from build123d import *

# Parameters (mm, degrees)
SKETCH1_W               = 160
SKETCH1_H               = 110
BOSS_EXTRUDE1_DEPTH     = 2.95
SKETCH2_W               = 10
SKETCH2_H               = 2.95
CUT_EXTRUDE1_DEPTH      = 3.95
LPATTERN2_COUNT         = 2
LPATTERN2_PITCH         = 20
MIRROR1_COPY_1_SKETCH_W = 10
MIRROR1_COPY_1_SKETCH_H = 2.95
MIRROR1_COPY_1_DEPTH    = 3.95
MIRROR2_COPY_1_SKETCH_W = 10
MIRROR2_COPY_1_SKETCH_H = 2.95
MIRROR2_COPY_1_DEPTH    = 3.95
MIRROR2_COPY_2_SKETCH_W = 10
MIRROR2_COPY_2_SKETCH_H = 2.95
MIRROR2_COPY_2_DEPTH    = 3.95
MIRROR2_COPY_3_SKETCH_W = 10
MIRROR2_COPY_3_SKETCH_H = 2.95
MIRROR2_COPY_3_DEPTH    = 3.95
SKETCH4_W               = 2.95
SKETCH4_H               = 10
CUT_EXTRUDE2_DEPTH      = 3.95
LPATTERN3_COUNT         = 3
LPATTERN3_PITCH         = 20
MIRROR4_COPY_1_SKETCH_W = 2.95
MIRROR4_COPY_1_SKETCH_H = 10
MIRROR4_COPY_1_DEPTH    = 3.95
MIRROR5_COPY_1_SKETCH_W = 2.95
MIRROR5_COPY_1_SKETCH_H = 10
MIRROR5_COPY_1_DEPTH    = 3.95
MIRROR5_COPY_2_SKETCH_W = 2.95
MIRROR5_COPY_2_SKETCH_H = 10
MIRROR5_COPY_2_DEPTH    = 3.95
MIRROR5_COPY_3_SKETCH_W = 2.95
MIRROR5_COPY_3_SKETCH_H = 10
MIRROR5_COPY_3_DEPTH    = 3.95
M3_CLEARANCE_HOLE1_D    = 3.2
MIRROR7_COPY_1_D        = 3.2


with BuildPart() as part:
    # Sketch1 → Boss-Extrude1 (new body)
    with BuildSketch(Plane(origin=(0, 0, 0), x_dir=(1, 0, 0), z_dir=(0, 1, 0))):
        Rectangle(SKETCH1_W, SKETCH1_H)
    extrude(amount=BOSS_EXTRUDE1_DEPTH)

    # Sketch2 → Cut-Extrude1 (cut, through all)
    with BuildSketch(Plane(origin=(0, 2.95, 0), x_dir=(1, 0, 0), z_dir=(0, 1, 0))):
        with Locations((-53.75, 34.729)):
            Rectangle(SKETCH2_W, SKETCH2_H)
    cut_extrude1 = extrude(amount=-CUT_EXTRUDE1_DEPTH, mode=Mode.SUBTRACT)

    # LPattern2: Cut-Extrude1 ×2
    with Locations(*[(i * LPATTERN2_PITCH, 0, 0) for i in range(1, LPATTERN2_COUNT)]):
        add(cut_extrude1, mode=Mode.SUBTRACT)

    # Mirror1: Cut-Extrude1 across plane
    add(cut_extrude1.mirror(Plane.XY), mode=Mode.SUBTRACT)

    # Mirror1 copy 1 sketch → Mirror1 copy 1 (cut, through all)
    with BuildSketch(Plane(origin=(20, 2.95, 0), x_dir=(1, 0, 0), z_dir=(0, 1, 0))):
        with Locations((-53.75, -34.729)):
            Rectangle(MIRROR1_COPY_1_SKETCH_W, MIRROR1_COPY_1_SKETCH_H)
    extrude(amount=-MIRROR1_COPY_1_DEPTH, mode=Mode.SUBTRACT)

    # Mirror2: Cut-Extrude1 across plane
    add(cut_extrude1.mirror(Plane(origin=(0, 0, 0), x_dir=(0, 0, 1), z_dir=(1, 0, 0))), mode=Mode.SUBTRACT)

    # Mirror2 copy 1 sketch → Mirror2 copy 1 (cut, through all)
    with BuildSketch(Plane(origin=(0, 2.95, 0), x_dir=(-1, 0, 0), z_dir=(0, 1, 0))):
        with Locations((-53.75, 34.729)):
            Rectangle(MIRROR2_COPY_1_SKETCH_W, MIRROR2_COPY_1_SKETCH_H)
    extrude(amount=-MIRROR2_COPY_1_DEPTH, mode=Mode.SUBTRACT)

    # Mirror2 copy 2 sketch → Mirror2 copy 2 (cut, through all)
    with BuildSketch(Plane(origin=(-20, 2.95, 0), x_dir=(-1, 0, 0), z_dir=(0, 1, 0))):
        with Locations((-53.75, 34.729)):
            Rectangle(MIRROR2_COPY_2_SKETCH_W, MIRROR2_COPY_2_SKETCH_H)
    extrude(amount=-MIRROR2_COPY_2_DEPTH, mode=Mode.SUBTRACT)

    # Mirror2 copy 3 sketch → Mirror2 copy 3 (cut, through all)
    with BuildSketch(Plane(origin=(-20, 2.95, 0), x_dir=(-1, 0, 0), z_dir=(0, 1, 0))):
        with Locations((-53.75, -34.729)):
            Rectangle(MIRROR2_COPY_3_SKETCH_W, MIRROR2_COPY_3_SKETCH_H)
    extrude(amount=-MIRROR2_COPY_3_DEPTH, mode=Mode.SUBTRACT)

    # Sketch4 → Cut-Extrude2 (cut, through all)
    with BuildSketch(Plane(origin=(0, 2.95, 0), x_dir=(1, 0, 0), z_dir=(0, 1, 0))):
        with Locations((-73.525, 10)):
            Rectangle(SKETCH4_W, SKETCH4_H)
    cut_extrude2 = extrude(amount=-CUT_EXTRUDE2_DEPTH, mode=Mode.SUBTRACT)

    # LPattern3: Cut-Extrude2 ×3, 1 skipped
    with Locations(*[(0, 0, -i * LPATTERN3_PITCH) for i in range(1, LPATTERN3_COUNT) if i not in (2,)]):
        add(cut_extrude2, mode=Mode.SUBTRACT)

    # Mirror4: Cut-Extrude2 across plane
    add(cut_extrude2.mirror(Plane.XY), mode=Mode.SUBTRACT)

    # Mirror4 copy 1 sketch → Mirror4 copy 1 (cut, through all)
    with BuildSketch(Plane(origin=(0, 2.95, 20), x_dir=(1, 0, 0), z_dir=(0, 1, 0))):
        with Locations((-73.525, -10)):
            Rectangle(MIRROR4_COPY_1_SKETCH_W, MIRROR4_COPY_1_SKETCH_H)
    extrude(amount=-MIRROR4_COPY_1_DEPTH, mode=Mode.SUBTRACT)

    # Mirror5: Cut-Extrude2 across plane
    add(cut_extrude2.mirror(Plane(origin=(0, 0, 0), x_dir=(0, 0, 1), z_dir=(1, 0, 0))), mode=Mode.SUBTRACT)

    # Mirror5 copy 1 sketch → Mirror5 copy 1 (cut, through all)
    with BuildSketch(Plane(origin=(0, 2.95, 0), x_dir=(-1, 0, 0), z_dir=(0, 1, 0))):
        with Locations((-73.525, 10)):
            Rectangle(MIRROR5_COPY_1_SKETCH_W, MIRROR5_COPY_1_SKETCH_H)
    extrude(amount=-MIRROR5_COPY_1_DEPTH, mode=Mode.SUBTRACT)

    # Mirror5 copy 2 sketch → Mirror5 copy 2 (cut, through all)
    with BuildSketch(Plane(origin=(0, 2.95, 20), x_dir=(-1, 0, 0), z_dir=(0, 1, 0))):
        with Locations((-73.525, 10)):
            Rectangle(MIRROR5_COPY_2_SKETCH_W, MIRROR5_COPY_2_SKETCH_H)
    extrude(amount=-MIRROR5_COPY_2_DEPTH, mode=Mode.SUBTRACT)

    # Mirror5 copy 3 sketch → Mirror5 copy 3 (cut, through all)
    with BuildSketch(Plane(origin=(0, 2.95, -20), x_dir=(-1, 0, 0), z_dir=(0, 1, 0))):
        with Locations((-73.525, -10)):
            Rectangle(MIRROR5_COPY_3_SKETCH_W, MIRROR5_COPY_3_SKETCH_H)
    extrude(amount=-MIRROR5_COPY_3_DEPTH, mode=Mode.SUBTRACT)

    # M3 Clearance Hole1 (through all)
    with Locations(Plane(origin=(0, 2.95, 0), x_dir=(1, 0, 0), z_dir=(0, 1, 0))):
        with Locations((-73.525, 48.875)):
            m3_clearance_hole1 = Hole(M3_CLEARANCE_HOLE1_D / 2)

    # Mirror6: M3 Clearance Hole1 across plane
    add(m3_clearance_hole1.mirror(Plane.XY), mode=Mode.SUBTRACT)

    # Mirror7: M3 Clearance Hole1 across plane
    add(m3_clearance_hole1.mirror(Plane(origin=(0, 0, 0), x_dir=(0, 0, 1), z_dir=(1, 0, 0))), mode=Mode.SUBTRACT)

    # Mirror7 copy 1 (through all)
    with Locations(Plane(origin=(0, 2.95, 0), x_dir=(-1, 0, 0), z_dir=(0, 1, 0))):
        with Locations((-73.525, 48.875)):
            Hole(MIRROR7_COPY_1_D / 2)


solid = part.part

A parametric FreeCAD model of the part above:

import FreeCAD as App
import Part
import Sketcher

V = App.Vector


def add_polygon(sketch, points):
    """Adds a closed chain of lines whose ends are joined by coincident constraints."""
    first, n = sketch.GeometryCount, len(points)
    for a, b in zip(points, points[1:] + points[:1]):
        sketch.addGeometry(Part.LineSegment(App.Vector(*a, 0), App.Vector(*b, 0)), False)
    for i in range(n):
        sketch.addConstraint(Sketcher.Constraint("Coincident", first + i, 2, first + (i + 1) % n, 1))

doc = App.newDocument("Part")
body = doc.addObject("PartDesign::Body", "Body")

# Sketch on XZ plane
sketch1 = body.newObject("Sketcher::SketchObject", "Sketch")
sketch1.AttachmentSupport = (doc.getObject("XZ_Plane"), [""])
sketch1.MapMode = "FlatFace"
add_polygon(sketch1, [(-80, -55), (-80, 55), (80, 55), (80, -55)])  # lines 0-3
sketch1.addConstraint([
    Sketcher.Constraint("Vertical", 0),
    Sketcher.Constraint("Horizontal", 1),
    Sketcher.Constraint("Vertical", 2),
    Sketcher.Constraint("Horizontal", 3),
    Sketcher.Constraint("Symmetric", 0, 2, 2, 2, -1, 1),
    Sketcher.Constraint("DistanceX", 1, 1, 1, 2, 160.0),
    Sketcher.Constraint("DistanceY", 0, 1, 0, 2, 110.0),
])
pad1 = body.newObject("PartDesign::Pad", "Pad")
pad1.Profile = sketch1
pad1.Length = 2.95
pad1.Reversed = True

# Sketch on XZ plane
sketch2 = body.newObject("Sketcher::SketchObject", "Sketch001")
sketch2.AttachmentSupport = (doc.getObject("XZ_Plane"), [""])
sketch2.MapMode = "FlatFace"
sketch2.AttachmentOffset = App.Placement(V(0, 0, -2.95), App.Rotation())
add_polygon(sketch2, [(-58.8, -36.2), (-58.8, -33.3), (-48.8, -33.3), (-48.8, -36.2)])  # lines 0-3
sketch2.addConstraint([
    Sketcher.Constraint("Vertical", 0),
    Sketcher.Constraint("Horizontal", 1),
    Sketcher.Constraint("Vertical", 2),
    Sketcher.Constraint("Horizontal", 3),
    Sketcher.Constraint("DistanceX", 1, 1, 1, 2, 10.0),
    Sketcher.Constraint("DistanceY", 0, 1, 0, 2, 2.95),
    Sketcher.Constraint("DistanceX", 0, 2, -1, 1, 58.75),
    Sketcher.Constraint("DistanceY", 0, 2, -1, 1, 33.254),
])
pocket1 = body.newObject("PartDesign::Pocket", "Pocket")
pocket1.Profile = sketch2
pocket1.Type = "ThroughAll"
pocket1.Reversed = True
doc.recompute()

linearpattern = body.newObject("PartDesign::LinearPattern", "LinearPattern")
linearpattern.Originals = [pocket1]
linearpattern.Direction = (doc.getObject("X_Axis"), [""])
linearpattern.Mode = "offset"
linearpattern.Offset = 20
linearpattern.Occurrences = 2
body.Tip = linearpattern
doc.recompute()

mirrored = body.newObject("PartDesign::Mirrored", "Mirrored")
mirrored.Originals = [pocket1]
mirrored.MirrorPlane = (doc.getObject("XY_Plane"), [""])
body.Tip = mirrored

# Sketch on XZ plane
sketch3 = body.newObject("Sketcher::SketchObject", "Sketch002")
sketch3.AttachmentSupport = (doc.getObject("XZ_Plane"), [""])
sketch3.MapMode = "FlatFace"
sketch3.AttachmentOffset = App.Placement(V(0, 0, -2.95), App.Rotation())
add_polygon(sketch3, [(-38.8, 33.3), (-38.8, 36.2), (-28.8, 36.2), (-28.8, 33.3)])  # lines 0-3
sketch3.addConstraint([
    Sketcher.Constraint("Vertical", 0),
    Sketcher.Constraint("Horizontal", 1),
    Sketcher.Constraint("Vertical", 2),
    Sketcher.Constraint("Horizontal", 3),
    Sketcher.Constraint("DistanceX", 1, 1, 1, 2, 10.0),
    Sketcher.Constraint("DistanceY", 0, 1, 0, 2, 2.95),
    Sketcher.Constraint("DistanceX", 0, 2, -1, 1, 38.75),
    Sketcher.Constraint("DistanceY", -1, 1, 0, 2, 36.204),
])
pocket2 = body.newObject("PartDesign::Pocket", "Pocket001")
pocket2.Profile = sketch3
pocket2.Type = "ThroughAll"
pocket2.Reversed = True
doc.recompute()

mirrored2 = body.newObject("PartDesign::Mirrored", "Mirrored001")
mirrored2.Originals = [pocket1]
mirrored2.MirrorPlane = (doc.getObject("YZ_Plane"), [""])
body.Tip = mirrored2

# Sketch on XZ plane
sketch4 = body.newObject("Sketcher::SketchObject", "Sketch003")
sketch4.AttachmentSupport = (doc.getObject("XZ_Plane"), [""])
sketch4.MapMode = "FlatFace"
sketch4.AttachmentOffset = App.Placement(V(0, 0, -2.95), App.Rotation())
add_polygon(sketch4, [(58.8, 36.2), (58.8, 33.3), (48.8, 33.3), (48.8, 36.2)])  # lines 0-3
sketch4.addConstraint([
    Sketcher.Constraint("Vertical", 0),
    Sketcher.Constraint("Horizontal", 1),
    Sketcher.Constraint("Vertical", 2),
    Sketcher.Constraint("Horizontal", 3),
    Sketcher.Constraint("DistanceX", 1, 2, 1, 1, 10.0),
    Sketcher.Constraint("DistanceY", 0, 2, 0, 1, 2.95),
    Sketcher.Constraint("DistanceX", -1, 1, 0, 2, 58.75),
    Sketcher.Constraint("DistanceY", -1, 1, 0, 2, 33.254),
])
pocket3 = body.newObject("PartDesign::Pocket", "Pocket002")
pocket3.Profile = sketch4
pocket3.Type = "ThroughAll"
pocket3.Reversed = True

# Sketch on XZ plane
sketch5 = body.newObject("Sketcher::SketchObject", "Sketch004")
sketch5.AttachmentSupport = (doc.getObject("XZ_Plane"), [""])
sketch5.MapMode = "FlatFace"
sketch5.AttachmentOffset = App.Placement(V(0, 0, -2.95), App.Rotation())
add_polygon(sketch5, [(38.8, 36.2), (38.8, 33.3), (28.8, 33.3), (28.8, 36.2)])  # lines 0-3
sketch5.addConstraint([
    Sketcher.Constraint("Vertical", 0),
    Sketcher.Constraint("Horizontal", 1),
    Sketcher.Constraint("Vertical", 2),
    Sketcher.Constraint("Horizontal", 3),
    Sketcher.Constraint("DistanceX", 1, 2, 1, 1, 10.0),
    Sketcher.Constraint("DistanceY", 0, 2, 0, 1, 2.95),
    Sketcher.Constraint("DistanceX", -1, 1, 0, 2, 38.75),
    Sketcher.Constraint("DistanceY", -1, 1, 0, 2, 33.254),
])
pocket4 = body.newObject("PartDesign::Pocket", "Pocket003")
pocket4.Profile = sketch5
pocket4.Type = "ThroughAll"
pocket4.Reversed = True

# Sketch on XZ plane
sketch6 = body.newObject("Sketcher::SketchObject", "Sketch005")
sketch6.AttachmentSupport = (doc.getObject("XZ_Plane"), [""])
sketch6.MapMode = "FlatFace"
sketch6.AttachmentOffset = App.Placement(V(0, 0, -2.95), App.Rotation())
add_polygon(sketch6, [(38.8, -33.3), (38.8, -36.2), (28.8, -36.2), (28.8, -33.3)])  # lines 0-3
sketch6.addConstraint([
    Sketcher.Constraint("Vertical", 0),
    Sketcher.Constraint("Horizontal", 1),
    Sketcher.Constraint("Vertical", 2),
    Sketcher.Constraint("Horizontal", 3),
    Sketcher.Constraint("DistanceX", 1, 2, 1, 1, 10.0),
    Sketcher.Constraint("DistanceY", 0, 2, 0, 1, 2.95),
    Sketcher.Constraint("DistanceX", -1, 1, 0, 2, 38.75),
    Sketcher.Constraint("DistanceY", 0, 2, -1, 1, 36.204),
])
pocket5 = body.newObject("PartDesign::Pocket", "Pocket004")
pocket5.Profile = sketch6
pocket5.Type = "ThroughAll"
pocket5.Reversed = True

# Sketch on XZ plane
sketch7 = body.newObject("Sketcher::SketchObject", "Sketch006")
sketch7.AttachmentSupport = (doc.getObject("XZ_Plane"), [""])
sketch7.MapMode = "FlatFace"
sketch7.AttachmentOffset = App.Placement(V(0, 0, -2.95), App.Rotation())
add_polygon(sketch7, [(-75, -15), (-75, -5), (-72, -5), (-72, -15)])  # lines 0-3
sketch7.addConstraint([
    Sketcher.Constraint("Vertical", 0),
    Sketcher.Constraint("Horizontal", 1),
    Sketcher.Constraint("Vertical", 2),
    Sketcher.Constraint("Horizontal", 3),
    Sketcher.Constraint("DistanceY", 0, 1, 0, 2, 10.0),
    Sketcher.Constraint("DistanceX", 0, 2, -1, 1, 75.0),
    Sketcher.Constraint("DistanceY", 0, 2, -1, 1, 5.0),
    Sketcher.Constraint("DistanceX", 1, 1, 1, 2, 2.95),
])
pocket6 = body.newObject("PartDesign::Pocket", "Pocket005")
pocket6.Profile = sketch7
pocket6.Type = "ThroughAll"
pocket6.Reversed = True
doc.recompute()

linearpattern2 = body.newObject("PartDesign::LinearPattern", "LinearPattern001")
linearpattern2.Originals = [pocket6]
linearpattern2.Direction = (doc.getObject("Z_Axis"), [""])
linearpattern2.Mode = "offset"
linearpattern2.Offset = 20
linearpattern2.Occurrences = 2
linearpattern2.Reversed = True
body.Tip = linearpattern2
doc.recompute()

mirrored3 = body.newObject("PartDesign::Mirrored", "Mirrored002")
mirrored3.Originals = [pocket6]
mirrored3.MirrorPlane = (doc.getObject("XY_Plane"), [""])
body.Tip = mirrored3

# Sketch on XZ plane
sketch8 = body.newObject("Sketcher::SketchObject", "Sketch007")
sketch8.AttachmentSupport = (doc.getObject("XZ_Plane"), [""])
sketch8.MapMode = "FlatFace"
sketch8.AttachmentOffset = App.Placement(V(0, 0, -2.95), App.Rotation())
add_polygon(sketch8, [(-75, 25), (-75, 35), (-72, 35), (-72, 25)])  # lines 0-3
sketch8.addConstraint([
    Sketcher.Constraint("Vertical", 0),
    Sketcher.Constraint("Horizontal", 1),
    Sketcher.Constraint("Vertical", 2),
    Sketcher.Constraint("Horizontal", 3),
    Sketcher.Constraint("DistanceY", 0, 1, 0, 2, 10.0),
    Sketcher.Constraint("DistanceX", 0, 2, -1, 1, 75.0),
    Sketcher.Constraint("DistanceY", -1, 1, 0, 2, 35.0),
    Sketcher.Constraint("DistanceX", 1, 1, 1, 2, 2.95),
])
pocket7 = body.newObject("PartDesign::Pocket", "Pocket006")
pocket7.Profile = sketch8
pocket7.Type = "ThroughAll"
pocket7.Reversed = True
doc.recompute()

mirrored4 = body.newObject("PartDesign::Mirrored", "Mirrored003")
mirrored4.Originals = [pocket6]
mirrored4.MirrorPlane = (doc.getObject("YZ_Plane"), [""])
body.Tip = mirrored4

# Sketch on XZ plane
sketch9 = body.newObject("Sketcher::SketchObject", "Sketch008")
sketch9.AttachmentSupport = (doc.getObject("XZ_Plane"), [""])
sketch9.MapMode = "FlatFace"
sketch9.AttachmentOffset = App.Placement(V(0, 0, -2.95), App.Rotation())
add_polygon(sketch9, [(75, 15), (75, 5), (72, 5), (72, 15)])  # lines 0-3
sketch9.addConstraint([
    Sketcher.Constraint("Vertical", 0),
    Sketcher.Constraint("Horizontal", 1),
    Sketcher.Constraint("Vertical", 2),
    Sketcher.Constraint("Horizontal", 3),
    Sketcher.Constraint("DistanceY", 0, 2, 0, 1, 10.0),
    Sketcher.Constraint("DistanceX", -1, 1, 0, 2, 75.0),
    Sketcher.Constraint("DistanceY", -1, 1, 0, 2, 5.0),
    Sketcher.Constraint("DistanceX", 1, 2, 1, 1, 2.95),
])
pocket8 = body.newObject("PartDesign::Pocket", "Pocket007")
pocket8.Profile = sketch9
pocket8.Type = "ThroughAll"
pocket8.Reversed = True

# Sketch on XZ plane
sketch10 = body.newObject("Sketcher::SketchObject", "Sketch009")
sketch10.AttachmentSupport = (doc.getObject("XZ_Plane"), [""])
sketch10.MapMode = "FlatFace"
sketch10.AttachmentOffset = App.Placement(V(0, 0, -2.95), App.Rotation())
add_polygon(sketch10, [(75, 35), (75, 25), (72, 25), (72, 35)])  # lines 0-3
sketch10.addConstraint([
    Sketcher.Constraint("Vertical", 0),
    Sketcher.Constraint("Horizontal", 1),
    Sketcher.Constraint("Vertical", 2),
    Sketcher.Constraint("Horizontal", 3),
    Sketcher.Constraint("DistanceY", 0, 2, 0, 1, 10.0),
    Sketcher.Constraint("DistanceX", -1, 1, 0, 2, 75.0),
    Sketcher.Constraint("DistanceY", -1, 1, 0, 2, 25.0),
    Sketcher.Constraint("DistanceX", 1, 2, 1, 1, 2.95),
])
pocket9 = body.newObject("PartDesign::Pocket", "Pocket008")
pocket9.Profile = sketch10
pocket9.Type = "ThroughAll"
pocket9.Reversed = True

# Sketch on XZ plane
sketch11 = body.newObject("Sketcher::SketchObject", "Sketch010")
sketch11.AttachmentSupport = (doc.getObject("XZ_Plane"), [""])
sketch11.MapMode = "FlatFace"
sketch11.AttachmentOffset = App.Placement(V(0, 0, -2.95), App.Rotation())
add_polygon(sketch11, [(75, -25), (75, -35), (72, -35), (72, -25)])  # lines 0-3
sketch11.addConstraint([
    Sketcher.Constraint("Vertical", 0),
    Sketcher.Constraint("Horizontal", 1),
    Sketcher.Constraint("Vertical", 2),
    Sketcher.Constraint("Horizontal", 3),
    Sketcher.Constraint("DistanceY", 0, 2, 0, 1, 10.0),
    Sketcher.Constraint("DistanceX", -1, 1, 0, 2, 75.0),
    Sketcher.Constraint("DistanceY", 0, 2, -1, 1, 35.0),
    Sketcher.Constraint("DistanceX", 1, 2, 1, 1, 2.95),
])
pocket10 = body.newObject("PartDesign::Pocket", "Pocket009")
pocket10.Profile = sketch11
pocket10.Type = "ThroughAll"
pocket10.Reversed = True

# Sketch on XZ plane
sketch12 = body.newObject("Sketcher::SketchObject", "Sketch011")
sketch12.AttachmentSupport = (doc.getObject("XZ_Plane"), [""])
sketch12.MapMode = "FlatFace"
sketch12.AttachmentOffset = App.Placement(V(0, 0, -2.95), App.Rotation())
sketch12.addGeometry(Part.Circle(V(-73.5, -48.9, 0), V(0, 0, 1), 1.6), False)
sketch12.addConstraint([
    Sketcher.Constraint("Diameter", 0, 3.2),
    Sketcher.Constraint("DistanceX", 0, 3, -1, 1, 73.525),
    Sketcher.Constraint("DistanceY", 0, 3, -1, 1, 48.875),
])
doc.recompute()
hole = body.newObject("PartDesign::Hole", "Hole")
hole.Profile = sketch12
hole.ThreadType = "None"
hole.Diameter = 3.2
hole.DepthType = "ThroughAll"
hole.Reversed = True
doc.recompute()

mirrored5 = body.newObject("PartDesign::Mirrored", "Mirrored004")
mirrored5.Originals = [hole]
mirrored5.MirrorPlane = (doc.getObject("XY_Plane"), [""])
body.Tip = mirrored5
doc.recompute()

mirrored6 = body.newObject("PartDesign::Mirrored", "Mirrored005")
mirrored6.Originals = [hole]
mirrored6.MirrorPlane = (doc.getObject("YZ_Plane"), [""])
body.Tip = mirrored6

# Sketch on XZ plane
sketch13 = body.newObject("Sketcher::SketchObject", "Sketch012")
sketch13.AttachmentSupport = (doc.getObject("XZ_Plane"), [""])
sketch13.MapMode = "FlatFace"
sketch13.AttachmentOffset = App.Placement(V(0, 0, -2.95), App.Rotation())
sketch13.addGeometry(Part.Circle(V(73.5, 48.9, 0), V(0, 0, 1), 1.6), False)
sketch13.addConstraint([
    Sketcher.Constraint("Diameter", 0, 3.2),
    Sketcher.Constraint("DistanceX", -1, 1, 0, 3, 73.525),
    Sketcher.Constraint("DistanceY", -1, 1, 0, 3, 48.875),
])
doc.recompute()
hole2 = body.newObject("PartDesign::Hole", "Hole001")
hole2.Profile = sketch13
hole2.ThreadType = "None"
hole2.Diameter = 3.2
hole2.DepthType = "ThroughAll"
hole2.Reversed = True

doc.recompute()
